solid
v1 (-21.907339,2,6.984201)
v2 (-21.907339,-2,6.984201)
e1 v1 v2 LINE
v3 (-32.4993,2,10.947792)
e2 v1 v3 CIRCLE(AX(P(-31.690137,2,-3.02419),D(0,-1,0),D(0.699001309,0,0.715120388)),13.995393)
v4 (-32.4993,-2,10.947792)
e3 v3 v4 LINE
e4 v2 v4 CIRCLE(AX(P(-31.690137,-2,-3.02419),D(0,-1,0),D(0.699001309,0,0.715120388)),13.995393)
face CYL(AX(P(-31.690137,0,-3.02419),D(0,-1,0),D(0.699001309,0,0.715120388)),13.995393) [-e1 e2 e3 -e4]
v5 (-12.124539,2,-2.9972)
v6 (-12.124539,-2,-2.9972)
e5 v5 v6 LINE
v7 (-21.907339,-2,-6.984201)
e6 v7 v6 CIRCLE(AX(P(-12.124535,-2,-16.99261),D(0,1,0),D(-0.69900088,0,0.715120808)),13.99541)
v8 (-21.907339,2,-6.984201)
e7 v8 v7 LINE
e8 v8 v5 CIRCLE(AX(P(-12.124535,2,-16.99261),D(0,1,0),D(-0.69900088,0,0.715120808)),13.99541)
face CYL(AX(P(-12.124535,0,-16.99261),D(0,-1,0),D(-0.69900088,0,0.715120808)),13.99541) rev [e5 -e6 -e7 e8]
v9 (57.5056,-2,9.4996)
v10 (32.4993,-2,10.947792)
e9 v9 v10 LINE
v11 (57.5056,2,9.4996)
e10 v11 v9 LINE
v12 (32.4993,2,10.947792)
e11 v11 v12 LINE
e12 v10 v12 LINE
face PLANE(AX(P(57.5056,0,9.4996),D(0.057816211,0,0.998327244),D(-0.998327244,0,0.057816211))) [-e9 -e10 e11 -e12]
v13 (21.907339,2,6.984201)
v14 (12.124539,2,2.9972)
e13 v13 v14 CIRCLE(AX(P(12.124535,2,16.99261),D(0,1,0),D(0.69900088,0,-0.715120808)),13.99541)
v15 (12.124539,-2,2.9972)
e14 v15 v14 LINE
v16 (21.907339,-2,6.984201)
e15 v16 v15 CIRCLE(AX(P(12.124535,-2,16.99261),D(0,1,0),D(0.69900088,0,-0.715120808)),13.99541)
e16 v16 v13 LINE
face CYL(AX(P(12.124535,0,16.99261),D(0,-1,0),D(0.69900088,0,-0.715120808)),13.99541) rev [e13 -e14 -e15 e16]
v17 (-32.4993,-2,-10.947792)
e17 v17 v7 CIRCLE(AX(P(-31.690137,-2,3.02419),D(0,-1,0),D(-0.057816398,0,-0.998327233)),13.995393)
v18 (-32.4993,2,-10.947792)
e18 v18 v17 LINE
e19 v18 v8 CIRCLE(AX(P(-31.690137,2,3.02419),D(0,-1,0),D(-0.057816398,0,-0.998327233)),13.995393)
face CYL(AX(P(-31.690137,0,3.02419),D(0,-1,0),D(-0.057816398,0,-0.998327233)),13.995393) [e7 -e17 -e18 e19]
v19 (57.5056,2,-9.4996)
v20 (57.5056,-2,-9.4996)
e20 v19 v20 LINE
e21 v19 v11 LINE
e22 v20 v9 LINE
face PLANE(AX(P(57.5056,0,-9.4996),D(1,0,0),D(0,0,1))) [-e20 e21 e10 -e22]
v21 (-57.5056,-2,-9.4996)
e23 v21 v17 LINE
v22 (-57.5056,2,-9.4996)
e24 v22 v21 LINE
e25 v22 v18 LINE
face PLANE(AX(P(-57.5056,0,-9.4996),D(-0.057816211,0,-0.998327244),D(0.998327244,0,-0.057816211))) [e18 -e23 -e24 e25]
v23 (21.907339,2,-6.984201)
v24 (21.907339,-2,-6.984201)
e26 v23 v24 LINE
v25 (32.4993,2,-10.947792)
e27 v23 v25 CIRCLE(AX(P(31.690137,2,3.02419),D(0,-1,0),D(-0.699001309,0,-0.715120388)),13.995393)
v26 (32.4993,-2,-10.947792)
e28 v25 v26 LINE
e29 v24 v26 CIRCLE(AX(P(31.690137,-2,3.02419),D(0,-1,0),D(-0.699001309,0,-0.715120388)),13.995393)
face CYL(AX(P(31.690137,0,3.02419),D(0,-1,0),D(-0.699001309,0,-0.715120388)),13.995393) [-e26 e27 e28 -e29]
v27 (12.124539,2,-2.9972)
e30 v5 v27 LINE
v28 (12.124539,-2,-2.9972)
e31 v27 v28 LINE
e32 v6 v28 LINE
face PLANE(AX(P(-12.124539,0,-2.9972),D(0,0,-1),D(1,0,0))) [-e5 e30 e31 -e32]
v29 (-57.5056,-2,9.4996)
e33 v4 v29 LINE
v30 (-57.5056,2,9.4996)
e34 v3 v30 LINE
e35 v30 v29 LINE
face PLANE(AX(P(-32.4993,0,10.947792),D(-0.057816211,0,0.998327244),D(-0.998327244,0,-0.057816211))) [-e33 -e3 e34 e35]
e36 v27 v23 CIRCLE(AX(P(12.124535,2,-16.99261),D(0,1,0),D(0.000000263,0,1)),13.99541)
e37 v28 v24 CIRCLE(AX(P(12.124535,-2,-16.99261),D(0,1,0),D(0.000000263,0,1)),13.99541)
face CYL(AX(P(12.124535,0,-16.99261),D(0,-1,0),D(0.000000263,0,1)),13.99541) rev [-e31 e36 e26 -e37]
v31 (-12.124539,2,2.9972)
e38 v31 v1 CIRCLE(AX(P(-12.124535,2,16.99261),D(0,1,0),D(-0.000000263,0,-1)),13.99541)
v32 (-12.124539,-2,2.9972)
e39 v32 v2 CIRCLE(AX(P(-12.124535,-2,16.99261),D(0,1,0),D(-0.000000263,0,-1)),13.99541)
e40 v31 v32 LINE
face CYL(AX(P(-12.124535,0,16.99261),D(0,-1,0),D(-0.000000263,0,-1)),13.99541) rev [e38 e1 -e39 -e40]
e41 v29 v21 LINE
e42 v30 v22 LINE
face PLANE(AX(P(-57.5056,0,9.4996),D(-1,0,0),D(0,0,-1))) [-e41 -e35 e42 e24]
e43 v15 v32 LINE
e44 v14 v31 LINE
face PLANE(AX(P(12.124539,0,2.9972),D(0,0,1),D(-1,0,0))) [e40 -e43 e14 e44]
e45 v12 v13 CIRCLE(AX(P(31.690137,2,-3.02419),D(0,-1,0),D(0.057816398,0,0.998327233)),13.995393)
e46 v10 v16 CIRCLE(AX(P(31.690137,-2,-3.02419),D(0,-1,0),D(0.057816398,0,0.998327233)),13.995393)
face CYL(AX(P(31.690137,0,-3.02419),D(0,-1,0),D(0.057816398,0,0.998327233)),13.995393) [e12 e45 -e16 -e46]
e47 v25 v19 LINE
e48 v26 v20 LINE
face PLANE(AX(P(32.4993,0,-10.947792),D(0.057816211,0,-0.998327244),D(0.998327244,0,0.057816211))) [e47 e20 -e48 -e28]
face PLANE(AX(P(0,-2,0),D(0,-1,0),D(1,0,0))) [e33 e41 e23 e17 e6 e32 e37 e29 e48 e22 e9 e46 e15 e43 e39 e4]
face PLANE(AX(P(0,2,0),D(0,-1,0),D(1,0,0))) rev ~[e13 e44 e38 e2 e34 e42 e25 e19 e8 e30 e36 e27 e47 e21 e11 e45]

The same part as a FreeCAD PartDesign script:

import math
import FreeCAD as App
import Part
import Sketcher
from FreeCAD import Vector

doc = App.newDocument("Part")
params = doc.addObject("Spreadsheet::Sheet", "Params")
for row, (alias, value) in enumerate([
    ("pad1_length", "4 mm"),
], start=1):
    params.set(f"A{row}", alias)
    params.set(f"B{row}", "=" + value)
    params.setAlias(f"B{row}", alias)

body = doc.addObject("PartDesign::Body", "Body")

# Sketch on XZ plane
sketch1 = doc.addObject("Sketcher::SketchObject", "Sketch")
body.addObject(sketch1)
sketch1.AttachmentSupport = (doc.XZ_Plane, [""])
sketch1.MapMode = "FlatFace"
sketch1.addGeometry([
    Part.LineSegment(Vector(12, 3, 0), Vector(-12, 3, 0)),  # 0
    Part.ArcOfCircle(Part.Circle(Vector(-12, 17, 0), Vector(0, 0, 1), 14), math.radians(-134), math.radians(-90)),  # 1
    Part.ArcOfCircle(Part.Circle(Vector(-32, -3, 0), Vector(0, 0, 1), 14), math.radians(46), math.radians(93)),  # 2
    Part.LineSegment(Vector(-32, 11, 0), Vector(-58, 9, 0)),  # 3
    Part.LineSegment(Vector(-58, 9, 0), Vector(-58, -9, 0)),  # 4
    Part.LineSegment(Vector(-58, -9, 0), Vector(-32, -11, 0)),  # 5
    Part.ArcOfCircle(Part.Circle(Vector(-32, 3, 0), Vector(0, 0, 1), 14), math.radians(-93), math.radians(-46)),  # 6
    Part.ArcOfCircle(Part.Circle(Vector(-12, -17, 0), Vector(0, 0, 1), 14), math.radians(90), math.radians(134)),  # 7
    Part.LineSegment(Vector(-12, -3, 0), Vector(12, -3, 0)),  # 8
    Part.ArcOfCircle(Part.Circle(Vector(12, -17, 0), Vector(0, 0, 1), 14), math.radians(46), math.radians(90)),  # 9
    Part.ArcOfCircle(Part.Circle(Vector(32, 3, 0), Vector(0, 0, 1), 14), math.radians(-134), math.radians(-87)),  # 10
    Part.LineSegment(Vector(32, -11, 0), Vector(58, -9, 0)),  # 11
    Part.LineSegment(Vector(58, -9, 0), Vector(58, 9, 0)),  # 12
    Part.LineSegment(Vector(58, 9, 0), Vector(32, 11, 0)),  # 13
    Part.ArcOfCircle(Part.Circle(Vector(32, -3, 0), Vector(0, 0, 1), 14), math.radians(87), math.radians(134)),  # 14
    Part.ArcOfCircle(Part.Circle(Vector(12, 17, 0), Vector(0, 0, 1), 14), math.radians(-90), math.radians(-46)),  # 15
], False)
sketch1.addConstraint([
    Sketcher.Constraint("Tangent", 0, 2, 1, 2),
    Sketcher.Constraint("Tangent", 1, 1, 2, 1),
    Sketcher.Constraint("Tangent", 2, 2, 3, 1),
    Sketcher.Constraint("Coincident", 3, 2, 4, 1),
    Sketcher.Constraint("Coincident", 4, 2, 5, 1),
    Sketcher.Constraint("Tangent", 5, 2, 6, 1),
    Sketcher.Constraint("Tangent", 6, 2, 7, 2),
    Sketcher.Constraint("Tangent", 7, 1, 8, 1),
    Sketcher.Constraint("Tangent", 8, 2, 9, 2),
    Sketcher.Constraint("Tangent", 9, 1, 10, 1),
    Sketcher.Constraint("Tangent", 10, 2, 11, 1),
    Sketcher.Constraint("Coincident", 11, 2, 12, 1),
    Sketcher.Constraint("Coincident", 12, 2, 13, 1),
    Sketcher.Constraint("Tangent", 13, 2, 14, 1),
    Sketcher.Constraint("Tangent", 14, 2, 15, 2),
    Sketcher.Constraint("Tangent", 15, 1, 0, 1),
    Sketcher.Constraint("Horizontal", 0),
    Sketcher.Constraint("Vertical", 4),
    Sketcher.Constraint("Horizontal", 8),
    Sketcher.Constraint("Vertical", 12),
    Sketcher.Constraint("Equal", 2, 6),
    Sketcher.Constraint("Equal", 1, 7),
    Sketcher.Constraint("Equal", 7, 9),
    Sketcher.Constraint("Equal", 6, 10),
    Sketcher.Constraint("Equal", 10, 14),
    Sketcher.Constraint("Equal", 9, 15),
    Sketcher.Constraint("Symmetric", 1, 3, 9, 3, -1, 1),
    Sketcher.Constraint("Symmetric", 6, 3, 14, 3, -1, 1),
    Sketcher.Constraint("Symmetric", 2, 2, 10, 2, -1, 1),
    Sketcher.Constraint("Symmetric", 4, 2, 12, 2, -1, 1),
    Sketcher.Constraint("Symmetric", 6, 3, 10, 3, -2),
    Sketcher.Constraint("Horizontal", 5, 2, 10, 2),
    Sketcher.Constraint("Radius", 1, 13.99541),
    Sketcher.Constraint("DistanceY", 4, 2, 4, 1, 18.9992),
    Sketcher.Constraint("Radius", 2, 13.995393),
    Sketcher.Constraint("DistanceY", 0, 2, 1, 1, 3.987001),
    Sketcher.Constraint("Distance", 3, 25.0482),
    Sketcher.Constraint("DistanceX", 0, 2, 0, 1, 24.249078),
    Sketcher.Constraint("DistanceY", -1, 1, 0, 2, 2.9972),
])
pad1 = doc.addObject("PartDesign::Pad", "Pad")
body.addObject(pad1)
pad1.Profile = sketch1
pad1.setExpression("Length", "Params.pad1_length")
pad1.Midplane = True

doc.recompute()
